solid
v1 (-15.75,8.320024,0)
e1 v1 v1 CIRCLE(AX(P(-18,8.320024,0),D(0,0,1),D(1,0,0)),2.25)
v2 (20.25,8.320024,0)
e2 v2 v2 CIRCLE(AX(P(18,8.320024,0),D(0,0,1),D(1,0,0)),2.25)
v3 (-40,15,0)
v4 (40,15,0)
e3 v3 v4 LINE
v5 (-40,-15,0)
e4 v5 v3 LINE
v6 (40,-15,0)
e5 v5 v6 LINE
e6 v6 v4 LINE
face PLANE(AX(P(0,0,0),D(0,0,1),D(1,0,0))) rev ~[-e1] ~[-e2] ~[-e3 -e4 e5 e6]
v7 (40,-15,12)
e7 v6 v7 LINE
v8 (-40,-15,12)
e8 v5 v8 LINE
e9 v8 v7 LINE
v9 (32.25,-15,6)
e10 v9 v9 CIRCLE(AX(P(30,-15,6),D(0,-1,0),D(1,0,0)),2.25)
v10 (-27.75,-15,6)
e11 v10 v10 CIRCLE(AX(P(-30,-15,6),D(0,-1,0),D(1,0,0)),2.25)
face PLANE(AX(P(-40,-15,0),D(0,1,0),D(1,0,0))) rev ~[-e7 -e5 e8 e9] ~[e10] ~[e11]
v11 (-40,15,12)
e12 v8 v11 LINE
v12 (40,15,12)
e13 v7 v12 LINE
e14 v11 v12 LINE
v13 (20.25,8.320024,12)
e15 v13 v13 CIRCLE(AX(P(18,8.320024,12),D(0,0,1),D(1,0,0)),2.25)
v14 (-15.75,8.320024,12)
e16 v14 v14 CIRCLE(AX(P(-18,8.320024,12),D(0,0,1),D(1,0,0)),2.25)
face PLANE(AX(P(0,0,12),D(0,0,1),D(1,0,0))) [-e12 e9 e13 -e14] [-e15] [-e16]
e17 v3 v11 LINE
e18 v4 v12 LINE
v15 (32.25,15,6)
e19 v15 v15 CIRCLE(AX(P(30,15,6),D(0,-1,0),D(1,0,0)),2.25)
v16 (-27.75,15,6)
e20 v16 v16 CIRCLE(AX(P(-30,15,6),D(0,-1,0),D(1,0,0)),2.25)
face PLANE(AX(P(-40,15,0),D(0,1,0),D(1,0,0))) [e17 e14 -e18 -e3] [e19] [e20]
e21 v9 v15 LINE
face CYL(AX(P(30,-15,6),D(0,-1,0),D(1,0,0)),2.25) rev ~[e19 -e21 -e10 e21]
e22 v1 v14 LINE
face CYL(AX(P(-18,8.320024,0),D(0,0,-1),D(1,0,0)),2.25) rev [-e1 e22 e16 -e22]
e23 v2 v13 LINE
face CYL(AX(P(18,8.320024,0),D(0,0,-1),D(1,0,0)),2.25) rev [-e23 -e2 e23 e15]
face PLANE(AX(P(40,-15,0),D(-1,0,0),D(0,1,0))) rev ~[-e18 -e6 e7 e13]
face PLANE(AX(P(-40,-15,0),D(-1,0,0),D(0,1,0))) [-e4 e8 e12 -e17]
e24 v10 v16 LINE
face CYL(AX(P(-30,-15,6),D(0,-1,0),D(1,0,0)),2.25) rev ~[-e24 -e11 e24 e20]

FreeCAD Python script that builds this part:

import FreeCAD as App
import Part
import Sketcher
from FreeCAD import Vector
Q = App.Units.Quantity

doc = App.newDocument("Part")
body = doc.addObject("PartDesign::Body", "Body")

# Sketch on XY plane
sketch1 = doc.addObject("Sketcher::SketchObject", "Sketch")
body.addObject(sketch1)
sketch1.AttachmentSupport = (doc.XY_Plane, [""])
sketch1.MapMode = "FlatFace"
sketch1.addGeometry(Part.LineSegment(Vector(-40, 15, 0), Vector(-40, -15, 0)), False)
sketch1.addGeometry(Part.LineSegment(Vector(-40, -15, 0), Vector(40, -15, 0)), False)
sketch1.addGeometry(Part.LineSegment(Vector(40, -15, 0), Vector(40, 15, 0)), False)
sketch1.addGeometry(Part.LineSegment(Vector(40, 15, 0), Vector(-40, 15, 0)), False)
sketch1.addGeometry(Part.Circle(Vector(-18, 8.320024, 0), Vector(0, 0, 1), 2.25), False)
sketch1.addGeometry(Part.Circle(Vector(18, 8.320024, 0), Vector(0, 0, 1), 2.25), False)
sketch1.addConstraint(Sketcher.Constraint("Coincident", 0, 2, 1, 1))
sketch1.addConstraint(Sketcher.Constraint("Coincident", 1, 2, 2, 1))
sketch1.addConstraint(Sketcher.Constraint("Coincident", 2, 2, 3, 1))
sketch1.addConstraint(Sketcher.Constraint("Coincident", 3, 2, 0, 1))
sketch1.addConstraint(Sketcher.Constraint("Vertical", 0))
sketch1.addConstraint(Sketcher.Constraint("Horizontal", 1))
sketch1.addConstraint(Sketcher.Constraint("Vertical", 2))
sketch1.addConstraint(Sketcher.Constraint("Horizontal", 3))
sketch1.addConstraint(Sketcher.Constraint("Equal", 4, 5))
sketch1.addConstraint(Sketcher.Constraint("Symmetric", 0, 2, 2, 2, -1, 1))
sketch1.addConstraint(Sketcher.Constraint("Symmetric", 4, 3, 5, 3, -2))
sketch1.addConstraint(Sketcher.Constraint("Diameter", 4, Q("4.5 mm")))
sketch1.addConstraint(Sketcher.Constraint("DistanceX", 1, 1, 1, 2, Q("80 mm")))
sketch1.addConstraint(Sketcher.Constraint("DistanceY", 0, 2, 0, 1, Q("30 mm")))
sketch1.addConstraint(Sketcher.Constraint("DistanceX", 4, 3, -1, 1, Q("18 mm")))
sketch1.addConstraint(Sketcher.Constraint("DistanceY", -1, 1, 4, 3, Q("8.320024 mm")))
pad1 = doc.addObject("PartDesign::Pad", "Pad")
body.addObject(pad1)
pad1.Profile = sketch1
pad1.Length = 12

# Sketch on XZ plane
sketch2 = doc.addObject("Sketcher::SketchObject", "Sketch001")
body.addObject(sketch2)
sketch2.AttachmentSupport = (doc.XZ_Plane, [""])
sketch2.MapMode = "FlatFace"
sketch2.AttachmentOffset = App.Placement(Vector(0, 0, 15), App.Rotation())
sketch2.addGeometry(Part.Circle(Vector(-30, 6, 0), Vector(0, 0, 1), 2.25), False)
sketch2.addGeometry(Part.Circle(Vector(30, 6, 0), Vector(0, 0, 1), 2.25), False)
sketch2.addConstraint(Sketcher.Constraint("Equal", 0, 1))
sketch2.addConstraint(Sketcher.Constraint("Symmetric", 0, 3, 1, 3, -2))
sketch2.addConstraint(Sketcher.Constraint("Diameter", 0, Q("4.5 mm")))
sketch2.addConstraint(Sketcher.Constraint("DistanceX", 0, 3, -1, 1, Q("30 mm")))
sketch2.addConstraint(Sketcher.Constraint("DistanceY", -1, 1, 0, 3, Q("6 mm")))
pocket1 = doc.addObject("PartDesign::Pocket", "Pocket")
body.addObject(pocket1)
pocket1.Profile = sketch2
pocket1.Type = "ThroughAll"

doc.recompute()
